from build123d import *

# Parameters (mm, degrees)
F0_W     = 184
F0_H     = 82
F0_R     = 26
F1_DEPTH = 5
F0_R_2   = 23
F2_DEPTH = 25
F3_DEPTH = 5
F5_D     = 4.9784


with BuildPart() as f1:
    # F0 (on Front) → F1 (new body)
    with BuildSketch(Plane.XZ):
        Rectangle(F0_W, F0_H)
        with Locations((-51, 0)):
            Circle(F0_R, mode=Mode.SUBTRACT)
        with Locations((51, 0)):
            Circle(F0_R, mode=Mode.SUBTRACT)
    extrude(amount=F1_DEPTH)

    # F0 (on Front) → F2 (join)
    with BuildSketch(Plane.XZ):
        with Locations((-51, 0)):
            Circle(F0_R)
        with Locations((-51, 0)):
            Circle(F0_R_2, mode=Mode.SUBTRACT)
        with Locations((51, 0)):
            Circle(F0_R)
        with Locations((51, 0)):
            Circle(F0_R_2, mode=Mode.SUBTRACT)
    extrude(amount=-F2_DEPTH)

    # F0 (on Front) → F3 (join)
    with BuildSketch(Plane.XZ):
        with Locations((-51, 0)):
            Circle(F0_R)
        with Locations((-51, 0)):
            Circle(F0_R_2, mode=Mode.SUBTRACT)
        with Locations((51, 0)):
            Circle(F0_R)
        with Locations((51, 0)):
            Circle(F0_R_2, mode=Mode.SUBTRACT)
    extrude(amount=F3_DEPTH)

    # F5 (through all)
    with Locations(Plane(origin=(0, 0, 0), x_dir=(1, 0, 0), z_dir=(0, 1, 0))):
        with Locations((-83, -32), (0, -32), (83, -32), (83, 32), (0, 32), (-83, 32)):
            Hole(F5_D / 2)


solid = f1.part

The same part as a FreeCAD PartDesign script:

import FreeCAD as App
import Part
import Sketcher
Q = App.Units.Quantity

doc = App.newDocument("Part")
body = doc.addObject("PartDesign::Body", "Body")
body.AllowCompound = True

sketch1 = body.newObject("Sketcher::SketchObject", "Sketch")
sketch1.AttachmentSupport = (doc.getObject("XZ_Plane"), [""])
sketch1.MapMode = "FlatFace"
sketch1.addGeometry([
    Part.LineSegment(App.Vector(-92, 41, 0), App.Vector(-92, -41, 0)),
    Part.LineSegment(App.Vector(-92, -41, 0), App.Vector(92, -41, 0)),
    Part.LineSegment(App.Vector(92, -41, 0), App.Vector(92, 41, 0)),
    Part.LineSegment(App.Vector(92, 41, 0), App.Vector(-92, 41, 0)),
    Part.Circle(App.Vector(-51, 0, 0), App.Vector(0, 0, 1), 26),
    Part.Circle(App.Vector(51, 0, 0), App.Vector(0, 0, 1), 26),
], False)
sketch1.addConstraint([
    Sketcher.Constraint("Coincident", 0, 2, 1, 1),
    Sketcher.Constraint("Coincident", 1, 2, 2, 1),
    Sketcher.Constraint("Coincident", 2, 2, 3, 1),
    Sketcher.Constraint("Coincident", 3, 2, 0, 1),
    Sketcher.Constraint("Vertical", 0),
    Sketcher.Constraint("Horizontal", 1),
    Sketcher.Constraint("Vertical", 2),
    Sketcher.Constraint("Horizontal", 3),
    Sketcher.Constraint("Equal", 4, 5),
    Sketcher.Constraint("Symmetric", 4, 3, 5, 3, -1, 1),
    Sketcher.Constraint("Symmetric", 0, 2, 2, 2, -1, 1),
    Sketcher.Constraint("PointOnObject", 4, 3, -1),
    Sketcher.Constraint("Diameter", 4, Q("52 mm")),
    Sketcher.Constraint("DistanceX", 1, 1, 1, 2, Q("184 mm")),
    Sketcher.Constraint("DistanceY", 0, 2, 0, 1, Q("82 mm")),
    Sketcher.Constraint("DistanceX", 4, 3, -1, 1, Q("51 mm")),
])
pad1 = body.newObject("PartDesign::Pad", "Pad")
pad1.Profile = sketch1
pad1.Length = 5

sketch2 = body.newObject("Sketcher::SketchObject", "Sketch001")
sketch2.AttachmentSupport = (doc.getObject("XZ_Plane"), [""])
sketch2.MapMode = "FlatFace"
sketch2.addGeometry([
    Part.Circle(App.Vector(-51, 0, 0), App.Vector(0, 0, 1), 26),
    Part.Circle(App.Vector(-51, 0, 0), App.Vector(0, 0, 1), 23),
    Part.Circle(App.Vector(51, 0, 0), App.Vector(0, 0, 1), 26),
    Part.Circle(App.Vector(51, 0, 0), App.Vector(0, 0, 1), 23),
], False)
sketch2.addConstraint([
    Sketcher.Constraint("Coincident", 1, 3, 0, 3),
    Sketcher.Constraint("Coincident", 3, 3, 2, 3),
    Sketcher.Constraint("Equal", 0, 2),
    Sketcher.Constraint("Equal", 1, 3),
    Sketcher.Constraint("Symmetric", 0, 3, 2, 3, -1, 1),
    Sketcher.Constraint("PointOnObject", 0, 3, -1),
    Sketcher.Constraint("Diameter", 0, Q("52 mm")),
    Sketcher.Constraint("Diameter", 1, Q("46 mm")),
    Sketcher.Constraint("DistanceX", 0, 3, -1, 1, Q("51 mm")),
])
pad2 = body.newObject("PartDesign::Pad", "Pad001")
pad2.Profile = sketch2
pad2.Length = 25
pad2.Reversed = True

sketch3 = body.newObject("Sketcher::SketchObject", "Sketch002")
sketch3.AttachmentSupport = (doc.getObject("XZ_Plane"), [""])
sketch3.MapMode = "FlatFace"
sketch3.addGeometry([
    Part.Circle(App.Vector(-51, 0, 0), App.Vector(0, 0, 1), 26),
    Part.Circle(App.Vector(-51, 0, 0), App.Vector(0, 0, 1), 23),
    Part.Circle(App.Vector(51, 0, 0), App.Vector(0, 0, 1), 26),
    Part.Circle(App.Vector(51, 0, 0), App.Vector(0, 0, 1), 23),
], False)
sketch3.addConstraint([
    Sketcher.Constraint("Coincident", 1, 3, 0, 3),
    Sketcher.Constraint("Coincident", 3, 3, 2, 3),
    Sketcher.Constraint("Equal", 0, 2),
    Sketcher.Constraint("Equal", 1, 3),
    Sketcher.Constraint("Symmetric", 0, 3, 2, 3, -1, 1),
    Sketcher.Constraint("PointOnObject", 0, 3, -1),
    Sketcher.Constraint("Diameter", 0, Q("52 mm")),
    Sketcher.Constraint("Diameter", 1, Q("46 mm")),
    Sketcher.Constraint("DistanceX", 0, 3, -1, 1, Q("51 mm")),
])
pad3 = body.newObject("PartDesign::Pad", "Pad002")
pad3.Profile = sketch3
pad3.Length = 5

sketch4 = body.newObject("Sketcher::SketchObject", "Sketch003")
sketch4.AttachmentSupport = (doc.getObject("XZ_Plane"), [""])
sketch4.MapMode = "FlatFace"
sketch4.addGeometry([
    Part.Circle(App.Vector(-83, 32, 0), App.Vector(0, 0, 1), 2.5),
    Part.Circle(App.Vector(0, 32, 0), App.Vector(0, 0, 1), 2.5),
    Part.Circle(App.Vector(83, 32, 0), App.Vector(0, 0, 1), 2.5),
    Part.Circle(App.Vector(83, -32, 0), App.Vector(0, 0, 1), 2.5),
    Part.Circle(App.Vector(0, -32, 0), App.Vector(0, 0, 1), 2.5),
    Part.Circle(App.Vector(-83, -32, 0), App.Vector(0, 0, 1), 2.5),
], False)
sketch4.addConstraint([
    Sketcher.Constraint("Equal", 0, 1),
    Sketcher.Constraint("Equal", 1, 2),
    Sketcher.Constraint("Equal", 2, 3),
    Sketcher.Constraint("Equal", 3, 4),
    Sketcher.Constraint("Equal", 4, 5),
    Sketcher.Constraint("Symmetric", 0, 3, 3, 3, -1, 1),
    Sketcher.Constraint("Symmetric", 1, 3, 4, 3, -1, 1),
    Sketcher.Constraint("Symmetric", 2, 3, 5, 3, -1, 1),
    Sketcher.Constraint("Symmetric", 0, 3, 2, 3, -2),
    Sketcher.Constraint("PointOnObject", 1, 3, -2),
    Sketcher.Constraint("Horizontal", 0, 3, 1, 3),
    Sketcher.Constraint("DistanceX", 0, 3, -1, 1, Q("83 mm")),
    Sketcher.Constraint("DistanceY", -1, 1, 0, 3, Q("32 mm")),
    Sketcher.Constraint("Diameter", 0, Q("4.9784 mm")),
])
doc.recompute()
hole = body.newObject("PartDesign::Hole", "Hole")
hole.Profile = sketch4
hole.ThreadType = "None"
hole.Diameter = 4.9784
hole.DepthType = "ThroughAll"
hole.Reversed = True

doc.recompute()
